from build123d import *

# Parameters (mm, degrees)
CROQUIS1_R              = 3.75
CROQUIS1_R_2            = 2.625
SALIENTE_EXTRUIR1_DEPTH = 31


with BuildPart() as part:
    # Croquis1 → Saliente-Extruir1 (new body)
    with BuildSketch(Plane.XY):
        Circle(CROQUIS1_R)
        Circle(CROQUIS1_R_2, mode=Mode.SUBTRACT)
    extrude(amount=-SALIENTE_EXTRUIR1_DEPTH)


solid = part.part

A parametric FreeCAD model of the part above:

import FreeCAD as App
import Part
import Sketcher

V = App.Vector

doc = App.newDocument("Part")
body = doc.addObject("PartDesign::Body", "Body")

sketch1 = doc.addObject("Sketcher::SketchObject", "Sketch")
body.addObject(sketch1)
sketch1.AttachmentSupport = (doc.XY_Plane, [""])
sketch1.MapMode = "FlatFace"
sketch1.addGeometry(Part.Circle(V(0, 0, 0), V(0, 0, 1), 3.8), False)
sketch1.addGeometry(Part.Circle(V(0, 0, 0), V(0, 0, 1), 2.6), False)
sketch1.addConstraint(Sketcher.Constraint("Coincident", 0, 3, -1, 1))
sketch1.addConstraint(Sketcher.Constraint("Coincident", 1, 3, -1, 1))
sketch1.addConstraint(Sketcher.Constraint("Diameter", 0, 7.5))
sketch1.addConstraint(Sketcher.Constraint("Diameter", 1, 5.25))
pad1 = doc.addObject("PartDesign::Pad", "Pad")
body.addObject(pad1)
pad1.Profile = sketch1
pad1.Length = 31
pad1.Reversed = True

doc.recompute()
